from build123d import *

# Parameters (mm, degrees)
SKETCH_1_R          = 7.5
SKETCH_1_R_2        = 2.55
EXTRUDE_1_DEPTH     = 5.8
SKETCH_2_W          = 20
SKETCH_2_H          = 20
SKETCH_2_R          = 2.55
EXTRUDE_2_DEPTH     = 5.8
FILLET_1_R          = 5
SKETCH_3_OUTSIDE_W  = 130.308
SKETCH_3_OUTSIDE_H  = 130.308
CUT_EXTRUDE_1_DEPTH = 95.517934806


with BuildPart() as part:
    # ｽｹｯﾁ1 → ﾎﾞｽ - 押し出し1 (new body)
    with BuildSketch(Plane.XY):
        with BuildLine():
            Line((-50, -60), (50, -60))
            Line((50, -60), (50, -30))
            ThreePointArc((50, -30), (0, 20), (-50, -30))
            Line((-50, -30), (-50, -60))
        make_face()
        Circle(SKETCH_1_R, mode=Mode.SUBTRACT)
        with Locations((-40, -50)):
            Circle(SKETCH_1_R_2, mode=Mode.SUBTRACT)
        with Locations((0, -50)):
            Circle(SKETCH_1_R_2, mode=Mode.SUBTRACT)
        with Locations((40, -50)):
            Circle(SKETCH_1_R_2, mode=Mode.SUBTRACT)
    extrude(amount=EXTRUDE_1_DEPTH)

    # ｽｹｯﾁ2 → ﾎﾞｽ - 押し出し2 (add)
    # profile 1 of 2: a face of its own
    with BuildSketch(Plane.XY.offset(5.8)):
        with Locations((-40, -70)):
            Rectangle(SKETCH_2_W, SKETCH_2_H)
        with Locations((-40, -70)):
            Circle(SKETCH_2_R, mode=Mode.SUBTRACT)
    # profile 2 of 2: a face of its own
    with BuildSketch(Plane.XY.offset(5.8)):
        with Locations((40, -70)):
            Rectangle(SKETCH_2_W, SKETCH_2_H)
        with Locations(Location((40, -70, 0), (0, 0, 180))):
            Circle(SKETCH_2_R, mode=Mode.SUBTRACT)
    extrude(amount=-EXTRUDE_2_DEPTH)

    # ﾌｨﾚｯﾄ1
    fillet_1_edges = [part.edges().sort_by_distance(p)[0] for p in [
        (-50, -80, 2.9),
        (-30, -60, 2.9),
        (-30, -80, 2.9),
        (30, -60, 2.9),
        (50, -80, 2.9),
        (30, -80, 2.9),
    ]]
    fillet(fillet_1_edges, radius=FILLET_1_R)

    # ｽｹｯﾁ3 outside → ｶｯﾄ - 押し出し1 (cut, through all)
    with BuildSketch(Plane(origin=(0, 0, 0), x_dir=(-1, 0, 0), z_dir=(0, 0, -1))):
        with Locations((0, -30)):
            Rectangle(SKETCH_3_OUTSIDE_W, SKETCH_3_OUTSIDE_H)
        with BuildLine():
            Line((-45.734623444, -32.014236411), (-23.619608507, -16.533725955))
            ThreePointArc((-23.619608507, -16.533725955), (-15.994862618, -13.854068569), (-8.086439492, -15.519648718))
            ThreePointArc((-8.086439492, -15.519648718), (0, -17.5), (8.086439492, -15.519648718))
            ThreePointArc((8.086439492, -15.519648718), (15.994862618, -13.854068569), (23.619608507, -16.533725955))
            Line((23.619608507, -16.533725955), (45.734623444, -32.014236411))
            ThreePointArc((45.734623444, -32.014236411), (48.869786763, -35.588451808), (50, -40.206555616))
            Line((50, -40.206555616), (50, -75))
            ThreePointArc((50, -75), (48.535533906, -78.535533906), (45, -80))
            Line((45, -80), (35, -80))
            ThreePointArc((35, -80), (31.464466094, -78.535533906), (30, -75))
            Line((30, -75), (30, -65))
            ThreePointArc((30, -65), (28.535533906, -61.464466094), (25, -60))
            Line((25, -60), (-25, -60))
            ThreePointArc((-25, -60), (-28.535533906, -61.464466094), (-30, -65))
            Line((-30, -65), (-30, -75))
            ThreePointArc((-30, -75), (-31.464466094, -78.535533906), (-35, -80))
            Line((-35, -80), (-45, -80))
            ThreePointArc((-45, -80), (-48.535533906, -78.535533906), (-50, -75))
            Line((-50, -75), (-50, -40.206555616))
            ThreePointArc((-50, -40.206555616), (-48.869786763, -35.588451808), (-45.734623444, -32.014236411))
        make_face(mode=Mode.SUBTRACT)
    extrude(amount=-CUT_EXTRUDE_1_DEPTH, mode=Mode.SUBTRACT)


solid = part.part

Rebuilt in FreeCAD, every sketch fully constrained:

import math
import FreeCAD as App
import Part
import Sketcher

V = App.Vector


def edges_at(feature, points):
    """Names of the edges that pass closest to the given points."""
    edges = feature.Shape.Edges
    near = lambda p: min(range(len(edges)), key=lambda i: edges[i].distToShape(Part.Vertex(*p))[0])
    return sorted({f"Edge{near(p) + 1}" for p in points})

doc = App.newDocument("Part")
params = doc.addObject("Spreadsheet::Sheet", "Params")
for row, (alias, value) in enumerate([
    ("sketch1_diameter", "15 mm"),
    ("sketch1_radius", "50 mm"),
    ("sketch1_diameter2", "5.1 mm"),
    ("sketch1_height", "30 mm"),
    ("pad1_length", "5.8 mm"),
    ("sketch2_diameter", "5.1 mm"),
    ("sketch2_width", "20 mm"),
    ("pad2_length", "5.8 mm"),
    ("fillet_radius", "5 mm"),
    ("sketch3_radius", "10 mm"),
    ("sketch3_radius2", "15 mm"),
    ("sketch3_radius3", "5 mm"),
    ("sketch3_radius4", "17.5 mm"),
    ("sketch3_width", "10 mm"),
], start=1):
    params.set(f"A{row}", alias)
    params.set(f"B{row}", "=" + value)
    params.setAlias(f"B{row}", alias)

body = doc.addObject("PartDesign::Body", "Body")

sketch1 = doc.addObject("Sketcher::SketchObject", "Sketch")
body.addObject(sketch1)
sketch1.AttachmentSupport = (doc.XY_Plane, [""])
sketch1.MapMode = "FlatFace"
sketch1.addGeometry([
    Part.LineSegment(V(-50, -60, 0), V(50, -60, 0)),
    Part.LineSegment(V(50, -60, 0), V(50, -30, 0)),
    Part.ArcOfCircle(Part.Circle(V(0, -30, 0), V(0, 0, 1), 50), math.radians(0), math.radians(180)),
    Part.LineSegment(V(-50, -30, 0), V(-50, -60, 0)),
    Part.Circle(V(-40, -50, 0), V(0, 0, 1), 2.5),
    Part.Circle(V(0, -50, 0), V(0, 0, 1), 2.5),
    Part.Circle(V(40, -50, 0), V(0, 0, 1), 2.5),
    Part.Circle(V(0, 0, 0), V(0, 0, 1), 7.5),
], False)
sketch1.addConstraint([
    Sketcher.Constraint("Coincident", 0, 2, 1, 1),
    Sketcher.Constraint("Tangent", 1, 2, 2, 1),
    Sketcher.Constraint("Tangent", 2, 2, 3, 1),
    Sketcher.Constraint("Coincident", 3, 2, 0, 1),
    Sketcher.Constraint("Horizontal", 0),
    Sketcher.Constraint("Vertical", 1),
    Sketcher.Constraint("Vertical", 3),
    Sketcher.Constraint("Coincident", 7, 3, -1, 1),
    Sketcher.Constraint("Equal", 4, 5),
    Sketcher.Constraint("Equal", 5, 6),
    Sketcher.Constraint("Symmetric", 4, 3, 6, 3, -2),
    Sketcher.Constraint("PointOnObject", 2, 3, -2),
    Sketcher.Constraint("PointOnObject", 5, 3, -2),
    Sketcher.Constraint("Horizontal", 4, 3, 5, 3),
    Sketcher.Constraint("Diameter", 7, 15.0),
    Sketcher.Constraint("Radius", 2, 50.0),
    Sketcher.Constraint("Diameter", 4, 5.1),
    Sketcher.Constraint("DistanceY", 1, 1, 1, 2, 30.0),
    Sketcher.Constraint("DistanceY", 2, 3, -1, 1, 30.0),
    Sketcher.Constraint("DistanceX", 4, 3, -1, 1, 40.0),
    Sketcher.Constraint("DistanceY", 4, 3, -1, 1, 50.0),
])
sketch1.setExpression("Constraints[14]", "Params.sketch1_diameter")
sketch1.setExpression("Constraints[15]", "Params.sketch1_radius")
sketch1.setExpression("Constraints[16]", "Params.sketch1_diameter2")
sketch1.setExpression("Constraints[17]", "Params.sketch1_height")
pad1 = doc.addObject("PartDesign::Pad", "Pad")
body.addObject(pad1)
pad1.Profile = sketch1
pad1.setExpression("Length", "Params.pad1_length")

sketch2 = doc.addObject("Sketcher::SketchObject", "Sketch001")
body.addObject(sketch2)
sketch2.AttachmentSupport = (doc.XY_Plane, [""])
sketch2.MapMode = "FlatFace"
sketch2.AttachmentOffset = App.Placement(V(0, 0, 5.8), App.Rotation())
sketch2.addGeometry([
    Part.LineSegment(V(-50, -60, 0), V(-50, -80, 0)),
    Part.LineSegment(V(-50, -80, 0), V(-30, -80, 0)),
    Part.LineSegment(V(-30, -80, 0), V(-30, -60, 0)),
    Part.LineSegment(V(-30, -60, 0), V(-50, -60, 0)),
    Part.Circle(V(-40, -70, 0), V(0, 0, 1), 2.5),
    Part.LineSegment(V(30, -60, 0), V(30, -80, 0)),
    Part.LineSegment(V(30, -80, 0), V(50, -80, 0)),
    Part.LineSegment(V(50, -80, 0), V(50, -60, 0)),
    Part.LineSegment(V(50, -60, 0), V(30, -60, 0)),
    Part.Circle(V(40, -70, 0), V(0, 0, 1), 2.5),
], False)
sketch2.addConstraint([
    Sketcher.Constraint("Coincident", 0, 2, 1, 1),
    Sketcher.Constraint("Coincident", 1, 2, 2, 1),
    Sketcher.Constraint("Coincident", 2, 2, 3, 1),
    Sketcher.Constraint("Coincident", 3, 2, 0, 1),
    Sketcher.Constraint("Coincident", 5, 2, 6, 1),
    Sketcher.Constraint("Coincident", 6, 2, 7, 1),
    Sketcher.Constraint("Coincident", 7, 2, 8, 1),
    Sketcher.Constraint("Coincident", 8, 2, 5, 1),
    Sketcher.Constraint("Vertical", 0),
    Sketcher.Constraint("Horizontal", 1),
    Sketcher.Constraint("Vertical", 2),
    Sketcher.Constraint("Horizontal", 3),
    Sketcher.Constraint("Vertical", 5),
    Sketcher.Constraint("Horizontal", 6),
    Sketcher.Constraint("Vertical", 7),
    Sketcher.Constraint("Horizontal", 8),
    Sketcher.Constraint("Equal", 4, 9),
    Sketcher.Constraint("Symmetric", 4, 3, 9, 3, -2),
    Sketcher.Constraint("Symmetric", 1, 2, 5, 2, -2),
    Sketcher.Constraint("Symmetric", 3, 2, 7, 2, -2),
    Sketcher.Constraint("Equal", 8, 0),
    Sketcher.Constraint("Diameter", 4, 5.1),
    Sketcher.Constraint("DistanceX", 1, 1, 1, 2, 20.0),
    Sketcher.Constraint("DistanceX", 4, 3, -1, 1, 40.0),
    Sketcher.Constraint("DistanceY", 4, 3, -1, 1, 70.0),
    Sketcher.Constraint("DistanceX", 0, 2, -1, 1, 50.0),
    Sketcher.Constraint("DistanceY", 0, 2, -1, 1, 80.0),
])
sketch2.setExpression("Constraints[21]", "Params.sketch2_diameter")
sketch2.setExpression("Constraints[22]", "Params.sketch2_width")
pad2 = doc.addObject("PartDesign::Pad", "Pad001")
body.addObject(pad2)
pad2.Profile = sketch2
pad2.setExpression("Length", "Params.pad2_length")
pad2.Reversed = True
doc.recompute()

fillet = doc.addObject("PartDesign::Fillet", "Fillet")
body.addObject(fillet)
fillet.Base = (pad2, edges_at(pad2, [
    (-50, -80, 2.9),
    (-30, -60, 2.9),
    (-30, -80, 2.9),
    (30, -60, 2.9),
    (50, -80, 2.9),
    (30, -80, 2.9),
]))
fillet.setExpression("Radius", "Params.fillet_radius")

sketch3 = doc.addObject("Sketcher::SketchObject", "Sketch002")
body.addObject(sketch3)
sketch3.AttachmentSupport = (doc.XY_Plane, [""])
sketch3.MapMode = "FlatFace"
sketch3.addGeometry([
    Part.LineSegment(V(65, 35, 0), V(65, -95, 0)),
    Part.LineSegment(V(65, -95, 0), V(-65, -95, 0)),
    Part.LineSegment(V(-65, -95, 0), V(-65, 35, 0)),
    Part.LineSegment(V(-65, 35, 0), V(65, 35, 0)),
    Part.ArcOfCircle(Part.Circle(V(40, -40, 0), V(0, 0, 1), 10), math.radians(0), math.radians(55)),
    Part.LineSegment(V(46, -32, 0), V(24, -17, 0)),
    Part.ArcOfCircle(Part.Circle(V(15, -29, 0), V(0, 0, 1), 15), math.radians(55), math.radians(118)),
    Part.ArcOfCircle(Part.Circle(V(0, 0, 0), V(0, 0, 1), 17), math.radians(-118), math.radians(-62)),
    Part.ArcOfCircle(Part.Circle(V(-15, -29, 0), V(0, 0, 1), 15), math.radians(62), math.radians(125)),
    Part.LineSegment(V(-24, -17, 0), V(-46, -32, 0)),
    Part.ArcOfCircle(Part.Circle(V(-40, -40, 0), V(0, 0, 1), 10), math.radians(125), math.radians(180)),
    Part.LineSegment(V(-50, -40, 0), V(-50, -75, 0)),
    Part.ArcOfCircle(Part.Circle(V(-45, -75, 0), V(0, 0, 1), 5), math.radians(180), math.radians(270)),
    Part.LineSegment(V(-45, -80, 0), V(-35, -80, 0)),
    Part.ArcOfCircle(Part.Circle(V(-35, -75, 0), V(0, 0, 1), 5), math.radians(-90), math.radians(0)),
    Part.LineSegment(V(-30, -75, 0), V(-30, -65, 0)),
    Part.ArcOfCircle(Part.Circle(V(-25, -65, 0), V(0, 0, 1), 5), math.radians(90), math.radians(180)),
    Part.LineSegment(V(-25, -60, 0), V(25, -60, 0)),
    Part.ArcOfCircle(Part.Circle(V(25, -65, 0), V(0, 0, 1), 5), math.radians(0), math.radians(90)),
    Part.LineSegment(V(30, -65, 0), V(30, -75, 0)),
    Part.ArcOfCircle(Part.Circle(V(35, -75, 0), V(0, 0, 1), 5), math.radians(180), math.radians(270)),
    Part.LineSegment(V(35, -80, 0), V(45, -80, 0)),
    Part.ArcOfCircle(Part.Circle(V(45, -75, 0), V(0, 0, 1), 5), math.radians(-90), math.radians(0)),
    Part.LineSegment(V(50, -75, 0), V(50, -40, 0)),
], False)
sketch3.addConstraint([
    Sketcher.Constraint("Coincident", 0, 2, 1, 1),
    Sketcher.Constraint("Coincident", 1, 2, 2, 1),
    Sketcher.Constraint("Coincident", 2, 2, 3, 1),
    Sketcher.Constraint("Coincident", 3, 2, 0, 1),
    Sketcher.Constraint("Tangent", 4, 2, 5, 1),
    Sketcher.Constraint("Tangent", 5, 2, 6, 1),
    Sketcher.Constraint("Tangent", 6, 2, 7, 2),
    Sketcher.Constraint("Tangent", 7, 1, 8, 1),
    Sketcher.Constraint("Tangent", 8, 2, 9, 1),
    Sketcher.Constraint("Tangent", 9, 2, 10, 1),
    Sketcher.Constraint("Tangent", 10, 2, 11, 1),
    Sketcher.Constraint("Tangent", 11, 2, 12, 1),
    Sketcher.Constraint("Tangent", 12, 2, 13, 1),
    Sketcher.Constraint("Tangent", 13, 2, 14, 1),
    Sketcher.Constraint("Tangent", 14, 2, 15, 1),
    Sketcher.Constraint("Tangent", 15, 2, 16, 2),
    Sketcher.Constraint("Tangent", 16, 1, 17, 1),
    Sketcher.Constraint("Tangent", 17, 2, 18, 2),
    Sketcher.Constraint("Tangent", 18, 1, 19, 1),
    Sketcher.Constraint("Tangent", 19, 2, 20, 1),
    Sketcher.Constraint("Tangent", 20, 2, 21, 1),
    Sketcher.Constraint("Tangent", 21, 2, 22, 1),
    Sketcher.Constraint("Tangent", 22, 2, 23, 1),
    Sketcher.Constraint("Tangent", 23, 2, 4, 1),
    Sketcher.Constraint("Vertical", 0),
    Sketcher.Constraint("Horizontal", 1),
    Sketcher.Constraint("Vertical", 2),
    Sketcher.Constraint("Horizontal", 3),
    Sketcher.Constraint("Vertical", 11),
    Sketcher.Constraint("Horizontal", 13),
    Sketcher.Constraint("Vertical", 15),
    Sketcher.Constraint("Horizontal", 17),
    Sketcher.Constraint("Vertical", 19),
    Sketcher.Constraint("Horizontal", 21),
    Sketcher.Constraint("Vertical", 23),
    Sketcher.Constraint("Coincident", 7, 3, -1, 1),
    Sketcher.Constraint("Equal", 6, 8),
    Sketcher.Constraint("Equal", 4, 10),
    Sketcher.Constraint("Equal", 12, 14),
    Sketcher.Constraint("Equal", 14, 16),
    Sketcher.Constraint("Equal", 16, 18),
    Sketcher.Constraint("Equal", 18, 20),
    Sketcher.Constraint("Equal", 20, 22),
    Sketcher.Constraint("Symmetric", 4, 3, 10, 3, -2),
    Sketcher.Constraint("Symmetric", 14, 3, 20, 3, -2),
    Sketcher.Constraint("Horizontal", 6, 3, 8, 3),
    Sketcher.Constraint("Equal", 3, 0),
    Sketcher.Constraint("Equal", 21, 15),
    Sketcher.Constraint("Radius", 4, 10.0),
    Sketcher.Constraint("Radius", 6, 15.0),
    Sketcher.Constraint("Radius", 12, 5.0),
    Sketcher.Constraint("Radius", 7, 17.5),
    Sketcher.Constraint("DistanceX", 13, 1, 13, 2, 10.0),
    Sketcher.Constraint("DistanceX", 17, 1, 17, 2, 50.0),
    Sketcher.Constraint("DistanceY", 12, 3, -1, 1, 75.0),
    Sketcher.Constraint("DistanceX", 1, 2, 1, 1, 130.308),
    Sketcher.Constraint("DistanceX", -1, 1, 0, 2, 65.154),
    Sketcher.Constraint("DistanceY", 0, 2, -1, 1, 95.154),
    Sketcher.Constraint("DistanceY", 11, 2, 11, 1, 34.793444),
    Sketcher.Constraint("DistanceX", -1, 1, 5, 2, 23.619609),
])
sketch3.setExpression("Constraints[48]", "Params.sketch3_radius")
sketch3.setExpression("Constraints[49]", "Params.sketch3_radius2")
sketch3.setExpression("Constraints[50]", "Params.sketch3_radius3")
sketch3.setExpression("Constraints[51]", "Params.sketch3_radius4")
sketch3.setExpression("Constraints[52]", "Params.sketch3_width")
pocket1 = doc.addObject("PartDesign::Pocket", "Pocket")
body.addObject(pocket1)
pocket1.Profile = sketch3
pocket1.Type = "ThroughAll"
pocket1.Reversed = True

doc.recompute()
